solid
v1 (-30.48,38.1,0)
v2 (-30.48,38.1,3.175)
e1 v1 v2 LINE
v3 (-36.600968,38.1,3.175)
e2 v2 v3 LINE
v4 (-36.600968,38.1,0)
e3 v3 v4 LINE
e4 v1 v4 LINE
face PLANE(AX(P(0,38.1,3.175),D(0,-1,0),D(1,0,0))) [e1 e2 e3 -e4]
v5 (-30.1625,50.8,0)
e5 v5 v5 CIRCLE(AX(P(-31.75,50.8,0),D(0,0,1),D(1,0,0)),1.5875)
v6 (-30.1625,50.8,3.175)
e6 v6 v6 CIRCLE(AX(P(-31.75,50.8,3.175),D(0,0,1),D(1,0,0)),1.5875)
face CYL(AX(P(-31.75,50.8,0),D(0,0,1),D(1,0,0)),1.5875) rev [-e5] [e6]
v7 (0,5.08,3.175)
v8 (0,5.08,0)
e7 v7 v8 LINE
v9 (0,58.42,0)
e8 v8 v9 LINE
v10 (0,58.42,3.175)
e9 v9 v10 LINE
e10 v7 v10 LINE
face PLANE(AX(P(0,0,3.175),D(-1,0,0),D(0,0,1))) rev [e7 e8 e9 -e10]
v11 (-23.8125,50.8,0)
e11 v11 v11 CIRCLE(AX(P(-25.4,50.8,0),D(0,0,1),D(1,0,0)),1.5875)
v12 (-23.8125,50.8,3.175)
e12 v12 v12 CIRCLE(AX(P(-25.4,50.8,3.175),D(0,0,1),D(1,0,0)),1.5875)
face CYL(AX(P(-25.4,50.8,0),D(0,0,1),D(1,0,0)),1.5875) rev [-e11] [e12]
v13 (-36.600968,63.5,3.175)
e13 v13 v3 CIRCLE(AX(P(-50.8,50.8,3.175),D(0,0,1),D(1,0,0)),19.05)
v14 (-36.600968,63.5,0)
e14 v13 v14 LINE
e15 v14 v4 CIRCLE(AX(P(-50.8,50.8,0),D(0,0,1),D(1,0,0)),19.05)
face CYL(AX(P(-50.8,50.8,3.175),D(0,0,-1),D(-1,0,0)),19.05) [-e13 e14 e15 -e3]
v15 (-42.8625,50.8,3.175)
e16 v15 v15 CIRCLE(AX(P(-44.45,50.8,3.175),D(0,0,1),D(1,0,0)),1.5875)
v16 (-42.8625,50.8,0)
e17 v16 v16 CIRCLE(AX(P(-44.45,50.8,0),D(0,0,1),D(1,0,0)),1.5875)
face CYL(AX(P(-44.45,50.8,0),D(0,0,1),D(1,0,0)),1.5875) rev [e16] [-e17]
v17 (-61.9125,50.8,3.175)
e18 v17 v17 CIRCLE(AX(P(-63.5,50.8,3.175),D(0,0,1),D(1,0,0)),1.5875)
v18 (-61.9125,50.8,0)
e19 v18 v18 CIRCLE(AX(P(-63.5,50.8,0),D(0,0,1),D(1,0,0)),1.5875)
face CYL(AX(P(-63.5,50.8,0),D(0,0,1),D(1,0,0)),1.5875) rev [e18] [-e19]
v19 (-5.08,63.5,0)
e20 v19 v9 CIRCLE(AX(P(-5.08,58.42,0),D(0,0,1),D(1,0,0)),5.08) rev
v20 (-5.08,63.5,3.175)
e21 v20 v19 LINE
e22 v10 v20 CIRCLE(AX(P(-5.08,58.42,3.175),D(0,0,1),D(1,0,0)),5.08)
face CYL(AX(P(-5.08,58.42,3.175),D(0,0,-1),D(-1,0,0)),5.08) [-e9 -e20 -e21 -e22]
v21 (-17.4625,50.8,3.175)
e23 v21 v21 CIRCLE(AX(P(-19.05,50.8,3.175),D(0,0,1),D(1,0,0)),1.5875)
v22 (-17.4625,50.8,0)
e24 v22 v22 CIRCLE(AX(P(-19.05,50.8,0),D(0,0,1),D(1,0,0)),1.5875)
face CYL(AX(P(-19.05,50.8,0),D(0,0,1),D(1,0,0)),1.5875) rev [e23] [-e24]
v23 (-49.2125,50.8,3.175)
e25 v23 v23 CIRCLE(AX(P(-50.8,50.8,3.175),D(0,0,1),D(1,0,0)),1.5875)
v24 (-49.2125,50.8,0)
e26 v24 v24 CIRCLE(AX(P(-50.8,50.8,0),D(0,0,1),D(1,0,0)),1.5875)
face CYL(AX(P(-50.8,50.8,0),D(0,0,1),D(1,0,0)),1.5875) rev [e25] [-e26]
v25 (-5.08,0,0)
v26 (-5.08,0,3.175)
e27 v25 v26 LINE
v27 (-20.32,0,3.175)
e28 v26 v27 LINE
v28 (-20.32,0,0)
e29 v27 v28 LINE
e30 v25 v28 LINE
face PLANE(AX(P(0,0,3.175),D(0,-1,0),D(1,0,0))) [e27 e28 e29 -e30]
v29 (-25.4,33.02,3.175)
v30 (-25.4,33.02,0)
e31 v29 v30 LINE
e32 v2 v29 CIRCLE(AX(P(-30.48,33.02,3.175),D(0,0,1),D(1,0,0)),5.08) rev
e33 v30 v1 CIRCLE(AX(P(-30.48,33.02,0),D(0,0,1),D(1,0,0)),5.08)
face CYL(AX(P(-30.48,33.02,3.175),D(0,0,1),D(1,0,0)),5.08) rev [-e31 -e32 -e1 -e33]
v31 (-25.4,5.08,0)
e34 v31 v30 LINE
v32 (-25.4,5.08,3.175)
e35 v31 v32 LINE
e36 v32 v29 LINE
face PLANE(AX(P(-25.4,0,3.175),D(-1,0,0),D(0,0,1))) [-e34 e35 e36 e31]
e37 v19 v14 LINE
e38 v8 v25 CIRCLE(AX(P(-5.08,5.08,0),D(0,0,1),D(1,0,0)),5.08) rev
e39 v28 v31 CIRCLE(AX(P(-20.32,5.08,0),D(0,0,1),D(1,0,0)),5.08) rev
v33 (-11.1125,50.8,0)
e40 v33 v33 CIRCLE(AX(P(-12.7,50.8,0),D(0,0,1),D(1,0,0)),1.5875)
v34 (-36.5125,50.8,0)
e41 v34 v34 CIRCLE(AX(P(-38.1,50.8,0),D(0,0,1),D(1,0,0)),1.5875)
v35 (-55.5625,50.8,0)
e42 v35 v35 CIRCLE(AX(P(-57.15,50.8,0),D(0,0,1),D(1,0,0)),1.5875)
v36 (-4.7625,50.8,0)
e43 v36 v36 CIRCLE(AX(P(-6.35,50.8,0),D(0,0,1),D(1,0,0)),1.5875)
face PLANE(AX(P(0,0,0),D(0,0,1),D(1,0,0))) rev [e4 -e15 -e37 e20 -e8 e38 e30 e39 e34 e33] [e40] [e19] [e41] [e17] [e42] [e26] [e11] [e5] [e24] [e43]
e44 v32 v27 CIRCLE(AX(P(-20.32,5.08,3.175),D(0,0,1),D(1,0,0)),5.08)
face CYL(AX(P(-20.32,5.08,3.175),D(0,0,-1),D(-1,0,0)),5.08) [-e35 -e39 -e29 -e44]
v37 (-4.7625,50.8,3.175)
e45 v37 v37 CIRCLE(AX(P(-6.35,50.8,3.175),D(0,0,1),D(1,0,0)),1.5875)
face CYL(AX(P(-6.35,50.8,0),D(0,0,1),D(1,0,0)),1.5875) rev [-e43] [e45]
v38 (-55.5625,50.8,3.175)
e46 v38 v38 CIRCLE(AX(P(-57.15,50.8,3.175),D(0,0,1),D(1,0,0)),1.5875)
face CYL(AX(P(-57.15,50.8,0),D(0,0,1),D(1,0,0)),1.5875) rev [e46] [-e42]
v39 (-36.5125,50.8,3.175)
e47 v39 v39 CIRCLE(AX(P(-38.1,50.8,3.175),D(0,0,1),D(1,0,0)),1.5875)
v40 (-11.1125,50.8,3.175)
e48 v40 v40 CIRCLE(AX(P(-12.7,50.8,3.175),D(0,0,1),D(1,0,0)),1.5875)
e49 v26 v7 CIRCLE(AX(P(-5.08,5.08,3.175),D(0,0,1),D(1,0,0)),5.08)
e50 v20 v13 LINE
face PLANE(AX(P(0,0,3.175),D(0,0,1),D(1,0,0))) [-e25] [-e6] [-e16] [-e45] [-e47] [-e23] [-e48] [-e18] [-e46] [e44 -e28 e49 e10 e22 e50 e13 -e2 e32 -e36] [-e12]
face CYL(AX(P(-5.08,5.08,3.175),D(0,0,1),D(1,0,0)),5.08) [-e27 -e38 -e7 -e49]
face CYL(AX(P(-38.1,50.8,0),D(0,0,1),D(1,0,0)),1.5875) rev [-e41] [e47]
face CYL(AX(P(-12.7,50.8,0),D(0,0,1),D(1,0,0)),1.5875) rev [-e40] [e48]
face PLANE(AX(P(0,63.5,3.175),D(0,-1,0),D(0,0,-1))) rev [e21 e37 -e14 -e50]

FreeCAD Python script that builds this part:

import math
import FreeCAD as App
import Part
import Sketcher
from FreeCAD import Vector
Q = App.Units.Quantity


def edges_at(feature, points):
    """Names of the edges that pass closest to the given points."""
    edges = feature.Shape.Edges
    near = lambda p: min(range(len(edges)), key=lambda i: edges[i].distToShape(Part.Vertex(*p))[0])
    return sorted({f"Edge{near(p) + 1}" for p in points})

doc = App.newDocument("Part")
body = doc.addObject("PartDesign::Body", "Body")

# Sketch on XY plane
sketch1 = doc.addObject("Sketcher::SketchObject", "Sketch")
body.addObject(sketch1)
sketch1.AttachmentSupport = (doc.XY_Plane, [""])
sketch1.MapMode = "FlatFace"
sketch1.addGeometry(Part.ArcOfCircle(Part.Circle(Vector(-50.8, 50.8, 0), Vector(0, 0, 1), 19.05), math.radians(41.810315), math.radians(318.189685)), False)
sketch1.addGeometry(Part.LineSegment(Vector(-36.600968, 38.1, 0), Vector(-25.4, 38.1, 0)), False)
sketch1.addGeometry(Part.LineSegment(Vector(-25.4, 38.1, 0), Vector(-25.4, 0, 0)), False)
sketch1.addGeometry(Part.LineSegment(Vector(-25.4, 0, 0), Vector(0, 0, 0)), False)
sketch1.addGeometry(Part.LineSegment(Vector(0, 0, 0), Vector(0, 63.5, 0)), False)
sketch1.addGeometry(Part.LineSegment(Vector(0, 63.5, 0), Vector(-36.600968, 63.5, 0)), False)
sketch1.addConstraint(Sketcher.Constraint("Coincident", 0, 2, 1, 1))
sketch1.addConstraint(Sketcher.Constraint("Coincident", 1, 2, 2, 1))
sketch1.addConstraint(Sketcher.Constraint("Coincident", 2, 2, 3, 1))
sketch1.addConstraint(Sketcher.Constraint("Coincident", 3, 2, 4, 1))
sketch1.addConstraint(Sketcher.Constraint("Coincident", 4, 2, 5, 1))
sketch1.addConstraint(Sketcher.Constraint("Coincident", 5, 2, 0, 1))
sketch1.addConstraint(Sketcher.Constraint("Horizontal", 1))
sketch1.addConstraint(Sketcher.Constraint("Vertical", 2))
sketch1.addConstraint(Sketcher.Constraint("Horizontal", 3))
sketch1.addConstraint(Sketcher.Constraint("Vertical", 4))
sketch1.addConstraint(Sketcher.Constraint("Horizontal", 5))
sketch1.addConstraint(Sketcher.Constraint("Coincident", 3, 2, -1, 1))
sketch1.addConstraint(Sketcher.Constraint("Vertical", 0, 2, 5, 2))
sketch1.addConstraint(Sketcher.Constraint("DistanceX", 3, 1, 3, 2, Q("1 in")))
sketch1.addConstraint(Sketcher.Constraint("Radius", 0, Q("0.75 in")))
sketch1.addConstraint(Sketcher.Constraint("DistanceY", 2, 2, 2, 1, Q("1.5 in")))
sketch1.addConstraint(Sketcher.Constraint("DistanceY", 4, 1, 4, 2, Q("2.5 in")))
sketch1.addConstraint(Sketcher.Constraint("DistanceX", 0, 3, -1, 1, Q("2 in")))
pad1 = doc.addObject("PartDesign::Pad", "Pad")
body.addObject(pad1)
pad1.Profile = sketch1
pad1.Length = Q("0.125 in")
doc.recompute()

fillet = doc.addObject("PartDesign::Fillet", "Fillet")
body.addObject(fillet)
fillet.Base = (pad1, edges_at(pad1, [
    (0, 63.5, 1.587),
    (0, 0, 1.587),
    (-25.4, 0, 1.587),
    (-25.4, 38.1, 1.587),
]))
fillet.Radius = Q("0.2 in")

# Sketch on XY plane
sketch2 = doc.addObject("Sketcher::SketchObject", "Sketch001")
body.addObject(sketch2)
sketch2.AttachmentSupport = (doc.XY_Plane, [""])
sketch2.MapMode = "FlatFace"
sketch2.AttachmentOffset = App.Placement(Vector(0, 0, 0.125 * 25.4), App.Rotation())
sketch2.addGeometry(Part.Circle(Vector(-6.35, 50.8, 0), Vector(0, 0, 1), 1.5875), False)
sketch2.addGeometry(Part.Circle(Vector(-12.7, 50.8, 0), Vector(0, 0, 1), 1.5875), False)
sketch2.addGeometry(Part.Circle(Vector(-19.05, 50.8, 0), Vector(0, 0, 1), 1.5875), False)
sketch2.addGeometry(Part.Circle(Vector(-25.4, 50.8, 0), Vector(0, 0, 1), 1.5875), False)
sketch2.addGeometry(Part.Circle(Vector(-31.75, 50.8, 0), Vector(0, 0, 1), 1.5875), False)
sketch2.addGeometry(Part.Circle(Vector(-38.1, 50.8, 0), Vector(0, 0, 1), 1.5875), False)
sketch2.addGeometry(Part.Circle(Vector(-44.45, 50.8, 0), Vector(0, 0, 1), 1.5875), False)
sketch2.addGeometry(Part.Circle(Vector(-50.8, 50.8, 0), Vector(0, 0, 1), 1.5875), False)
sketch2.addGeometry(Part.Circle(Vector(-57.15, 50.8, 0), Vector(0, 0, 1), 1.5875), False)
sketch2.addGeometry(Part.Circle(Vector(-63.5, 50.8, 0), Vector(0, 0, 1), 1.5875), False)
sketch2.addConstraint(Sketcher.Constraint("Equal", 0, 1))
sketch2.addConstraint(Sketcher.Constraint("Equal", 1, 2))
sketch2.addConstraint(Sketcher.Constraint("Equal", 2, 3))
sketch2.addConstraint(Sketcher.Constraint("Equal", 3, 4))
sketch2.addConstraint(Sketcher.Constraint("Equal", 4, 5))
sketch2.addConstraint(Sketcher.Constraint("Equal", 5, 6))
sketch2.addConstraint(Sketcher.Constraint("Equal", 6, 7))
sketch2.addConstraint(Sketcher.Constraint("Equal", 7, 8))
sketch2.addConstraint(Sketcher.Constraint("Equal", 8, 9))
sketch2.addConstraint(Sketcher.Constraint("Horizontal", 0, 3, 1, 3))
sketch2.addConstraint(Sketcher.Constraint("Horizontal", 1, 3, 2, 3))
sketch2.addConstraint(Sketcher.Constraint("Horizontal", 2, 3, 3, 3))
sketch2.addConstraint(Sketcher.Constraint("Horizontal", 3, 3, 4, 3))
sketch2.addConstraint(Sketcher.Constraint("Horizontal", 4, 3, 5, 3))
sketch2.addConstraint(Sketcher.Constraint("Horizontal", 5, 3, 6, 3))
sketch2.addConstraint(Sketcher.Constraint("Horizontal", 6, 3, 7, 3))
sketch2.addConstraint(Sketcher.Constraint("Horizontal", 7, 3, 8, 3))
sketch2.addConstraint(Sketcher.Constraint("Horizontal", 8, 3, 9, 3))
sketch2.addConstraint(Sketcher.Constraint("Diameter", 0, Q("0.125 in")))
sketch2.addConstraint(Sketcher.Constraint("DistanceY", -1, 1, 0, 3, Q("2 in")))
sketch2.addConstraint(Sketcher.Constraint("DistanceX", 3, 3, -1, 1, Q("1 in")))
sketch2.addConstraint(Sketcher.Constraint("DistanceX", 7, 3, -1, 1, Q("2 in")))
sketch2.addConstraint(Sketcher.Constraint("DistanceX", 4, 3, 0, 3, Q("1 in")))
sketch2.addConstraint(Sketcher.Constraint("DistanceX", 5, 3, 1, 3, Q("1 in")))
sketch2.addConstraint(Sketcher.Constraint("DistanceX", 6, 3, 2, 3, Q("1 in")))
sketch2.addConstraint(Sketcher.Constraint("DistanceX", 8, 3, 4, 3, Q("1 in")))
sketch2.addConstraint(Sketcher.Constraint("DistanceX", 9, 3, 5, 3, Q("1 in")))
sketch2.addConstraint(Sketcher.Constraint("DistanceX", 1, 3, -1, 1, Q("0.5 in")))
sketch2.addConstraint(Sketcher.Constraint("DistanceX", 2, 3, 0, 3, Q("0.5 in")))
sketch2.addConstraint(Sketcher.Constraint("DistanceX", 0, 3, -1, 1, Q("0.25 in")))
pocket1 = doc.addObject("PartDesign::Pocket", "Pocket")
body.addObject(pocket1)
pocket1.Profile = sketch2
pocket1.Length = Q("0.125 in")

doc.recompute()
